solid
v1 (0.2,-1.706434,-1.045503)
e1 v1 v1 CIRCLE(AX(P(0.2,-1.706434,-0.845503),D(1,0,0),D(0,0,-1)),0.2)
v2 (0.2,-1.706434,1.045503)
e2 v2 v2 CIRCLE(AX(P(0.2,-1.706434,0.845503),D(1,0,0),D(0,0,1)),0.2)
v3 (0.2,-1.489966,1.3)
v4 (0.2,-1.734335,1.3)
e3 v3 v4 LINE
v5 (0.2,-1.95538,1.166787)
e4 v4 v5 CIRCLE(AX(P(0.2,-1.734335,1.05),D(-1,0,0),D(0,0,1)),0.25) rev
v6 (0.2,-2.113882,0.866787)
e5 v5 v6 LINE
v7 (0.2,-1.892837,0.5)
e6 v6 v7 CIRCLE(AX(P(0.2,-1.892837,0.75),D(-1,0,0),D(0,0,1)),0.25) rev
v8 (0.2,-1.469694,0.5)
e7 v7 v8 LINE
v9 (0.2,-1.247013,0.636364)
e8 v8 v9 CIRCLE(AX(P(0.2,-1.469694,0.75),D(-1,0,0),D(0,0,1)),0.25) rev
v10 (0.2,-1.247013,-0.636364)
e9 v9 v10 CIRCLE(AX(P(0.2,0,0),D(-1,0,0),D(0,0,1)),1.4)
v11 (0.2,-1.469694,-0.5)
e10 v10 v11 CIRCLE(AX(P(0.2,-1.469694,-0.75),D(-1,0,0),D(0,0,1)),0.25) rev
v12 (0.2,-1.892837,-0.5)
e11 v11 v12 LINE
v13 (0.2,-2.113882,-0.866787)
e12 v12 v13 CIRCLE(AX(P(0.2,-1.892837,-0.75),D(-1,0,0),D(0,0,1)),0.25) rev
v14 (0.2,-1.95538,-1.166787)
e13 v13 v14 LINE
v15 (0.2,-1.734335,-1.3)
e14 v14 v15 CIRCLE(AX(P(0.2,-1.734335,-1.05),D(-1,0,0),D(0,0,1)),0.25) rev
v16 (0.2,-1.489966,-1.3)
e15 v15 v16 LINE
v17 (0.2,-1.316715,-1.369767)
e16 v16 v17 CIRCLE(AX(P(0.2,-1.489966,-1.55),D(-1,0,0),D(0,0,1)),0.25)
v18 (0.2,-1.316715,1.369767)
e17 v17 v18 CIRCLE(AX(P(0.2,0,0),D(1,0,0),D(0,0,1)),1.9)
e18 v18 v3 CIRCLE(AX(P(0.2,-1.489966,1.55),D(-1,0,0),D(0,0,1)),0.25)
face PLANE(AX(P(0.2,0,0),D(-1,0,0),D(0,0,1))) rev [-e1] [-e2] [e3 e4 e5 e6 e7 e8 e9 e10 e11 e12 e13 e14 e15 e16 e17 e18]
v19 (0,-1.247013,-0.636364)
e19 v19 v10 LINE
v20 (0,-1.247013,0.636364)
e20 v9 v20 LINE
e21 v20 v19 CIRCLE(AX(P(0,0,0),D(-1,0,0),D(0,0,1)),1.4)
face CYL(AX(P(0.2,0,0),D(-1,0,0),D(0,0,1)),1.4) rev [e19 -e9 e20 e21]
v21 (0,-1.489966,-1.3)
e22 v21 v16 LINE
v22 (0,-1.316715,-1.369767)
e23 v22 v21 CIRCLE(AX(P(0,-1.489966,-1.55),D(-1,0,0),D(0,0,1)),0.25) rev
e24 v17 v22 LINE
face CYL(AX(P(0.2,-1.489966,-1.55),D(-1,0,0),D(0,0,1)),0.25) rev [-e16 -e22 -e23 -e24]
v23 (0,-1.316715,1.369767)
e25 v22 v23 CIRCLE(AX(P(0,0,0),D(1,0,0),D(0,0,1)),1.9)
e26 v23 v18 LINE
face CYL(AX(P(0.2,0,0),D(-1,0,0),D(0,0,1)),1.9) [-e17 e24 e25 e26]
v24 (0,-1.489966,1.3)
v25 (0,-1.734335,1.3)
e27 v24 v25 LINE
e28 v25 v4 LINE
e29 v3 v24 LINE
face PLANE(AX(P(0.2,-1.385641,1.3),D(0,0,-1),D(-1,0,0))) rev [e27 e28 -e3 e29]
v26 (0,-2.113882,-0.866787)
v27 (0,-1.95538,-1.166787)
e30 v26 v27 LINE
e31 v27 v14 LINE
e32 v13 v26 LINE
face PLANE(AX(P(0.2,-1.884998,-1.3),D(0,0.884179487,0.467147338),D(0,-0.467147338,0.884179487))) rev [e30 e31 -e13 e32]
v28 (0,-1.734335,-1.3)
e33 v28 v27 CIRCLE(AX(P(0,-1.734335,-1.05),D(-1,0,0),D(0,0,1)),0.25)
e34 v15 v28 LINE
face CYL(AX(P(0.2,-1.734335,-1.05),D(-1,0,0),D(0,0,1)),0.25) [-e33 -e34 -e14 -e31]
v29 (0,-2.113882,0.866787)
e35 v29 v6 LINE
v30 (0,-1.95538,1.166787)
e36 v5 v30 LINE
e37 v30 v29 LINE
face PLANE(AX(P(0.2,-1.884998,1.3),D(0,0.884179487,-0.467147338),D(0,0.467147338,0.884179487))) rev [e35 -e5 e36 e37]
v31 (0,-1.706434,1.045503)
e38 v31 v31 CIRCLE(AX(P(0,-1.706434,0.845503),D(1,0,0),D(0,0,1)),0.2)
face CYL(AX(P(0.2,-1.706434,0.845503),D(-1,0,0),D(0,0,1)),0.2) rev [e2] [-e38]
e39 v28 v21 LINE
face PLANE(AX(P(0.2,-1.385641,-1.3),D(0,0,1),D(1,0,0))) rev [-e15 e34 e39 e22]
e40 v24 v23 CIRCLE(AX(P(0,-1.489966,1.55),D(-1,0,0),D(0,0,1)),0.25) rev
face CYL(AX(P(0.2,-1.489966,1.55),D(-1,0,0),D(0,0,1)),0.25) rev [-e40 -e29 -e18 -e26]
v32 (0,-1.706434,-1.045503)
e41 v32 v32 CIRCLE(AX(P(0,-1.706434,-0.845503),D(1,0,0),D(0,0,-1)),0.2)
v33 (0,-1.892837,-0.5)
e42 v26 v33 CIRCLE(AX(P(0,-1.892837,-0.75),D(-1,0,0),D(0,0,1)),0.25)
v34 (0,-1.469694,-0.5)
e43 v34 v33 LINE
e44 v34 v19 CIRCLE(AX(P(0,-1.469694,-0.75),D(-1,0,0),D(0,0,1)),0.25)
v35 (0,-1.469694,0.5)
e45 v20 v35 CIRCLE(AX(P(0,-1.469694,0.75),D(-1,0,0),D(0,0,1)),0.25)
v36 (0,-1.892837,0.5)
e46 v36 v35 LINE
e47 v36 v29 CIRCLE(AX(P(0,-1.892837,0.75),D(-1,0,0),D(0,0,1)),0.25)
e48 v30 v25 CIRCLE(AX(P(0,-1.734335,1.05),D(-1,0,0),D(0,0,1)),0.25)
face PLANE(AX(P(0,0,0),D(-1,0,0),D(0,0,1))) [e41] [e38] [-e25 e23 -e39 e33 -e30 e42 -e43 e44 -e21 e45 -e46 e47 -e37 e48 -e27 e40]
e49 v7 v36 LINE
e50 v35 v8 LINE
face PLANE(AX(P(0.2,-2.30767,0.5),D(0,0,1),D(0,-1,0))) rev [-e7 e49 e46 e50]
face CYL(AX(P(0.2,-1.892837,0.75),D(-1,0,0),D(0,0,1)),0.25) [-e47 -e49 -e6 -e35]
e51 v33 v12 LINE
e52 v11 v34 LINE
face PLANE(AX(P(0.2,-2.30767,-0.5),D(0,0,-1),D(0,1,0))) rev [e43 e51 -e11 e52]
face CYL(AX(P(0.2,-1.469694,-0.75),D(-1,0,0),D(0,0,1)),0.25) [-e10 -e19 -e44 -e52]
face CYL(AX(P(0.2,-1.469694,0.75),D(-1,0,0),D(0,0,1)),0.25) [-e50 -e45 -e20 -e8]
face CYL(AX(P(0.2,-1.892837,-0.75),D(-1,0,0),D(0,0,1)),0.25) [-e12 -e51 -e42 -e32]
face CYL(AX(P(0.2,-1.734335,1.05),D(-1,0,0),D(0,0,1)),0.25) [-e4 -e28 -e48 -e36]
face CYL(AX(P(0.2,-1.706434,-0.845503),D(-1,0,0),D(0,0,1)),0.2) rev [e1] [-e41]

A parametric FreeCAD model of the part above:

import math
import FreeCAD as App
import Part
import Sketcher


def edges_at(feature, points):
    """Names of the edges that pass closest to the given points."""
    edges = feature.Shape.Edges
    near = lambda p: min(range(len(edges)), key=lambda i: edges[i].distToShape(Part.Vertex(*p))[0])
    return sorted({f"Edge{near(p) + 1}" for p in points})

doc = App.newDocument("Part")
params = doc.addObject("Spreadsheet::Sheet", "Params")
for row, (alias, value) in enumerate([
    ("sketch1_diameter", "0.4 mm"),
    ("sketch1_radius", "1.9 mm"),
    ("sketch1_radius2", "1.4 mm"),
    ("sketch1_width", "1 mm"),
    ("pad1_length", "0.2 mm"),
    ("fillet_radius", "0.25 mm"),
], start=1):
    params.set(f"A{row}", alias)
    params.set(f"B{row}", "=" + value)
    params.setAlias(f"B{row}", alias)

body = doc.addObject("PartDesign::Body", "Body")

# Sketch on YZ plane
sketch1 = doc.addObject("Sketcher::SketchObject", "Sketch")
body.addObject(sketch1)
sketch1.AttachmentSupport = (doc.YZ_Plane, [""])
sketch1.MapMode = "FlatFace"
sketch1.addGeometry(Part.LineSegment(App.Vector(-1.88, -1.3, 0), App.Vector(-1.39, -1.3, 0)), False)
sketch1.addGeometry(Part.ArcOfCircle(Part.Circle(App.Vector(0, 0, 0), App.Vector(0, 0, 1), 1.9), math.radians(-137), math.radians(137)), False)
sketch1.addGeometry(Part.LineSegment(App.Vector(-1.39, 1.3, 0), App.Vector(-1.88, 1.3, 0)), False)
sketch1.addGeometry(Part.LineSegment(App.Vector(-1.88, 1.3, 0), App.Vector(-2.31, 0.5, 0)), False)
sketch1.addGeometry(Part.LineSegment(App.Vector(-2.31, 0.5, 0), App.Vector(-1.31, 0.5, 0)), False)
sketch1.addGeometry(Part.ArcOfCircle(Part.Circle(App.Vector(0, 0, 0), App.Vector(0, 0, 1), 1.4), math.radians(-159), math.radians(159)), False)
sketch1.addGeometry(Part.LineSegment(App.Vector(-1.31, -0.5, 0), App.Vector(-2.31, -0.5, 0)), False)
sketch1.addGeometry(Part.LineSegment(App.Vector(-2.31, -0.5, 0), App.Vector(-1.88, -1.3, 0)), False)
sketch1.addGeometry(Part.Circle(App.Vector(-1.71, -0.85, 0), App.Vector(0, 0, 1), 0.2), False)
sketch1.addGeometry(Part.Circle(App.Vector(-1.71, 0.85, 0), App.Vector(0, 0, 1), 0.2), False)
sketch1.addConstraint(Sketcher.Constraint("Coincident", 0, 2, 1, 1))
sketch1.addConstraint(Sketcher.Constraint("Coincident", 1, 2, 2, 1))
sketch1.addConstraint(Sketcher.Constraint("Coincident", 2, 2, 3, 1))
sketch1.addConstraint(Sketcher.Constraint("Coincident", 3, 2, 4, 1))
sketch1.addConstraint(Sketcher.Constraint("Coincident", 4, 2, 5, 2))
sketch1.addConstraint(Sketcher.Constraint("Coincident", 5, 1, 6, 1))
sketch1.addConstraint(Sketcher.Constraint("Coincident", 6, 2, 7, 1))
sketch1.addConstraint(Sketcher.Constraint("Coincident", 7, 2, 0, 1))
sketch1.addConstraint(Sketcher.Constraint("Horizontal", 0))
sketch1.addConstraint(Sketcher.Constraint("Horizontal", 2))
sketch1.addConstraint(Sketcher.Constraint("Horizontal", 4))
sketch1.addConstraint(Sketcher.Constraint("Horizontal", 6))
sketch1.addConstraint(Sketcher.Constraint("Coincident", 1, 3, -1, 1))
sketch1.addConstraint(Sketcher.Constraint("Coincident", 5, 3, -1, 1))
sketch1.addConstraint(Sketcher.Constraint("Equal", 8, 9))
sketch1.addConstraint(Sketcher.Constraint("Symmetric", 8, 3, 9, 3, -1))
sketch1.addConstraint(Sketcher.Constraint("Symmetric", 3, 2, 6, 2, -1))
sketch1.addConstraint(Sketcher.Constraint("Symmetric", 2, 2, 7, 2, -1))
sketch1.addConstraint(Sketcher.Constraint("Diameter", 8, 0.4))
sketch1.addConstraint(Sketcher.Constraint("Radius", 1, 1.9))
sketch1.addConstraint(Sketcher.Constraint("Radius", 5, 1.4))
sketch1.addConstraint(Sketcher.Constraint("DistanceX", 4, 1, 4, 2, 1.0))
sketch1.addConstraint(Sketcher.Constraint("DistanceY", 5, 1, 4, 2, 1.0))
sketch1.addConstraint(Sketcher.Constraint("DistanceY", 0, 2, -1, 1, 1.3))
sketch1.addConstraint(Sketcher.Constraint("DistanceX", 0, 1, 0, 2, 0.499357))
sketch1.addConstraint(Sketcher.Constraint("DistanceX", 8, 3, -1, 1, 1.706434))
sketch1.addConstraint(Sketcher.Constraint("DistanceY", 8, 3, -1, 1, 0.845503))
sketch1.setExpression("Constraints[18]", "Params.sketch1_diameter")
sketch1.setExpression("Constraints[19]", "Params.sketch1_radius")
sketch1.setExpression("Constraints[20]", "Params.sketch1_radius2")
sketch1.setExpression("Constraints[21]", "Params.sketch1_width")
pad1 = doc.addObject("PartDesign::Pad", "Pad")
body.addObject(pad1)
pad1.Profile = sketch1
pad1.setExpression("Length", "Params.pad1_length")
doc.recompute()

fillet = doc.addObject("PartDesign::Fillet", "Fillet")
body.addObject(fillet)
fillet.Base = (pad1, edges_at(pad1, [
    (0.1, -1.308, 0.5),
    (0.1, -2.308, 0.5),
    (0.1, -1.885, 1.3),
    (0.1, -1.386, 1.3),
    (0.1, -1.386, -1.3),
    (0.1, -1.885, -1.3),
    (0.1, -2.308, -0.5),
    (0.1, -1.308, -0.5),
]))
fillet.setExpression("Radius", "Params.fillet_radius")

doc.recompute()
